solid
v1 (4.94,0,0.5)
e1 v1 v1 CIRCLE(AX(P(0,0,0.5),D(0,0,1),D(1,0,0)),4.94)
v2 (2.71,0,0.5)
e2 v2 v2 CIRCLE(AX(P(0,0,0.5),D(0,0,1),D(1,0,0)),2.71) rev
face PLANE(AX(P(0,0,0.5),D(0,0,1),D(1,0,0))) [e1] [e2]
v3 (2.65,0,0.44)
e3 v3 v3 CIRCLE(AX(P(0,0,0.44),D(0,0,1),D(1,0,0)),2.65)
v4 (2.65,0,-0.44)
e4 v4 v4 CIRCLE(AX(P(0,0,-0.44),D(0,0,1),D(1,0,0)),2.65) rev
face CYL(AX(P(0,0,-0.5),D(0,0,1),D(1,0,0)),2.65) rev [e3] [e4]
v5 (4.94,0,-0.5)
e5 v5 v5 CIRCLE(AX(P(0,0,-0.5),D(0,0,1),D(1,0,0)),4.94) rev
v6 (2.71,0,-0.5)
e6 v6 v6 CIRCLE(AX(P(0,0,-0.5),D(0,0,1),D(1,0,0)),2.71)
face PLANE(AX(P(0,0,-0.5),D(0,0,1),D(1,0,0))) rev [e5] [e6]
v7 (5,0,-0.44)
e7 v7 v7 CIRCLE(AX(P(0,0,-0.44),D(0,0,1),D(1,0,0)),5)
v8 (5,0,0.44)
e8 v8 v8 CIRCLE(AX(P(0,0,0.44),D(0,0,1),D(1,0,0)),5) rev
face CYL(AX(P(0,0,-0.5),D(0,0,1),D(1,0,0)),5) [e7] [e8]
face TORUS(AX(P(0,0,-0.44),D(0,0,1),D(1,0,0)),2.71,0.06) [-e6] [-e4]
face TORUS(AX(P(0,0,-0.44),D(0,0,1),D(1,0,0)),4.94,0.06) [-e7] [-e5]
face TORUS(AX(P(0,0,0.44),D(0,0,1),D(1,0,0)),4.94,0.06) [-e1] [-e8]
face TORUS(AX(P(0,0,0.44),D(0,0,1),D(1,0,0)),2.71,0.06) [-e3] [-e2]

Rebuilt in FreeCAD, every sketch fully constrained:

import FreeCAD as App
import Part
import Sketcher


def edges_at(feature, points):
    """Names of the edges that pass closest to the given points."""
    edges = feature.Shape.Edges
    near = lambda p: min(range(len(edges)), key=lambda i: edges[i].distToShape(Part.Vertex(*p))[0])
    return sorted({f"Edge{near(p) + 1}" for p in points})

doc = App.newDocument("Part")
body = doc.addObject("PartDesign::Body", "Body")

# Sketch on XY plane
sketch1 = body.newObject("Sketcher::SketchObject", "Sketch")
sketch1.AttachmentSupport = (doc.getObject("XY_Plane"), [""])
sketch1.MapMode = "FlatFace"
sketch1.AttachmentOffset = App.Placement(App.Vector(0, 0, 0.5), App.Rotation())
sketch1.addGeometry(Part.Circle(App.Vector(0, 0, 0), App.Vector(0, 0, 1), 5), False)
sketch1.addGeometry(Part.Circle(App.Vector(0, 0, 0), App.Vector(0, 0, 1), 2.6), False)
sketch1.addConstraint(Sketcher.Constraint("Coincident", 0, 3, -1, 1))
sketch1.addConstraint(Sketcher.Constraint("Coincident", 1, 3, -1, 1))
sketch1.addConstraint(Sketcher.Constraint("Diameter", 0, 10.0))
sketch1.addConstraint(Sketcher.Constraint("Diameter", 1, 5.3))
pad1 = body.newObject("PartDesign::Pad", "Pad")
pad1.Profile = sketch1
pad1.Length = 1
pad1.Reversed = True
doc.recompute()

fillet = body.newObject("PartDesign::Fillet", "Fillet")
fillet.Base = (pad1, edges_at(pad1, [
    (-5, 0, 0.5),
    (-5, 0, -0.5),
    (-2.65, 0, -0.5),
    (-2.65, 0, 0.5),
]))
fillet.Radius = 0.06

doc.recompute()
